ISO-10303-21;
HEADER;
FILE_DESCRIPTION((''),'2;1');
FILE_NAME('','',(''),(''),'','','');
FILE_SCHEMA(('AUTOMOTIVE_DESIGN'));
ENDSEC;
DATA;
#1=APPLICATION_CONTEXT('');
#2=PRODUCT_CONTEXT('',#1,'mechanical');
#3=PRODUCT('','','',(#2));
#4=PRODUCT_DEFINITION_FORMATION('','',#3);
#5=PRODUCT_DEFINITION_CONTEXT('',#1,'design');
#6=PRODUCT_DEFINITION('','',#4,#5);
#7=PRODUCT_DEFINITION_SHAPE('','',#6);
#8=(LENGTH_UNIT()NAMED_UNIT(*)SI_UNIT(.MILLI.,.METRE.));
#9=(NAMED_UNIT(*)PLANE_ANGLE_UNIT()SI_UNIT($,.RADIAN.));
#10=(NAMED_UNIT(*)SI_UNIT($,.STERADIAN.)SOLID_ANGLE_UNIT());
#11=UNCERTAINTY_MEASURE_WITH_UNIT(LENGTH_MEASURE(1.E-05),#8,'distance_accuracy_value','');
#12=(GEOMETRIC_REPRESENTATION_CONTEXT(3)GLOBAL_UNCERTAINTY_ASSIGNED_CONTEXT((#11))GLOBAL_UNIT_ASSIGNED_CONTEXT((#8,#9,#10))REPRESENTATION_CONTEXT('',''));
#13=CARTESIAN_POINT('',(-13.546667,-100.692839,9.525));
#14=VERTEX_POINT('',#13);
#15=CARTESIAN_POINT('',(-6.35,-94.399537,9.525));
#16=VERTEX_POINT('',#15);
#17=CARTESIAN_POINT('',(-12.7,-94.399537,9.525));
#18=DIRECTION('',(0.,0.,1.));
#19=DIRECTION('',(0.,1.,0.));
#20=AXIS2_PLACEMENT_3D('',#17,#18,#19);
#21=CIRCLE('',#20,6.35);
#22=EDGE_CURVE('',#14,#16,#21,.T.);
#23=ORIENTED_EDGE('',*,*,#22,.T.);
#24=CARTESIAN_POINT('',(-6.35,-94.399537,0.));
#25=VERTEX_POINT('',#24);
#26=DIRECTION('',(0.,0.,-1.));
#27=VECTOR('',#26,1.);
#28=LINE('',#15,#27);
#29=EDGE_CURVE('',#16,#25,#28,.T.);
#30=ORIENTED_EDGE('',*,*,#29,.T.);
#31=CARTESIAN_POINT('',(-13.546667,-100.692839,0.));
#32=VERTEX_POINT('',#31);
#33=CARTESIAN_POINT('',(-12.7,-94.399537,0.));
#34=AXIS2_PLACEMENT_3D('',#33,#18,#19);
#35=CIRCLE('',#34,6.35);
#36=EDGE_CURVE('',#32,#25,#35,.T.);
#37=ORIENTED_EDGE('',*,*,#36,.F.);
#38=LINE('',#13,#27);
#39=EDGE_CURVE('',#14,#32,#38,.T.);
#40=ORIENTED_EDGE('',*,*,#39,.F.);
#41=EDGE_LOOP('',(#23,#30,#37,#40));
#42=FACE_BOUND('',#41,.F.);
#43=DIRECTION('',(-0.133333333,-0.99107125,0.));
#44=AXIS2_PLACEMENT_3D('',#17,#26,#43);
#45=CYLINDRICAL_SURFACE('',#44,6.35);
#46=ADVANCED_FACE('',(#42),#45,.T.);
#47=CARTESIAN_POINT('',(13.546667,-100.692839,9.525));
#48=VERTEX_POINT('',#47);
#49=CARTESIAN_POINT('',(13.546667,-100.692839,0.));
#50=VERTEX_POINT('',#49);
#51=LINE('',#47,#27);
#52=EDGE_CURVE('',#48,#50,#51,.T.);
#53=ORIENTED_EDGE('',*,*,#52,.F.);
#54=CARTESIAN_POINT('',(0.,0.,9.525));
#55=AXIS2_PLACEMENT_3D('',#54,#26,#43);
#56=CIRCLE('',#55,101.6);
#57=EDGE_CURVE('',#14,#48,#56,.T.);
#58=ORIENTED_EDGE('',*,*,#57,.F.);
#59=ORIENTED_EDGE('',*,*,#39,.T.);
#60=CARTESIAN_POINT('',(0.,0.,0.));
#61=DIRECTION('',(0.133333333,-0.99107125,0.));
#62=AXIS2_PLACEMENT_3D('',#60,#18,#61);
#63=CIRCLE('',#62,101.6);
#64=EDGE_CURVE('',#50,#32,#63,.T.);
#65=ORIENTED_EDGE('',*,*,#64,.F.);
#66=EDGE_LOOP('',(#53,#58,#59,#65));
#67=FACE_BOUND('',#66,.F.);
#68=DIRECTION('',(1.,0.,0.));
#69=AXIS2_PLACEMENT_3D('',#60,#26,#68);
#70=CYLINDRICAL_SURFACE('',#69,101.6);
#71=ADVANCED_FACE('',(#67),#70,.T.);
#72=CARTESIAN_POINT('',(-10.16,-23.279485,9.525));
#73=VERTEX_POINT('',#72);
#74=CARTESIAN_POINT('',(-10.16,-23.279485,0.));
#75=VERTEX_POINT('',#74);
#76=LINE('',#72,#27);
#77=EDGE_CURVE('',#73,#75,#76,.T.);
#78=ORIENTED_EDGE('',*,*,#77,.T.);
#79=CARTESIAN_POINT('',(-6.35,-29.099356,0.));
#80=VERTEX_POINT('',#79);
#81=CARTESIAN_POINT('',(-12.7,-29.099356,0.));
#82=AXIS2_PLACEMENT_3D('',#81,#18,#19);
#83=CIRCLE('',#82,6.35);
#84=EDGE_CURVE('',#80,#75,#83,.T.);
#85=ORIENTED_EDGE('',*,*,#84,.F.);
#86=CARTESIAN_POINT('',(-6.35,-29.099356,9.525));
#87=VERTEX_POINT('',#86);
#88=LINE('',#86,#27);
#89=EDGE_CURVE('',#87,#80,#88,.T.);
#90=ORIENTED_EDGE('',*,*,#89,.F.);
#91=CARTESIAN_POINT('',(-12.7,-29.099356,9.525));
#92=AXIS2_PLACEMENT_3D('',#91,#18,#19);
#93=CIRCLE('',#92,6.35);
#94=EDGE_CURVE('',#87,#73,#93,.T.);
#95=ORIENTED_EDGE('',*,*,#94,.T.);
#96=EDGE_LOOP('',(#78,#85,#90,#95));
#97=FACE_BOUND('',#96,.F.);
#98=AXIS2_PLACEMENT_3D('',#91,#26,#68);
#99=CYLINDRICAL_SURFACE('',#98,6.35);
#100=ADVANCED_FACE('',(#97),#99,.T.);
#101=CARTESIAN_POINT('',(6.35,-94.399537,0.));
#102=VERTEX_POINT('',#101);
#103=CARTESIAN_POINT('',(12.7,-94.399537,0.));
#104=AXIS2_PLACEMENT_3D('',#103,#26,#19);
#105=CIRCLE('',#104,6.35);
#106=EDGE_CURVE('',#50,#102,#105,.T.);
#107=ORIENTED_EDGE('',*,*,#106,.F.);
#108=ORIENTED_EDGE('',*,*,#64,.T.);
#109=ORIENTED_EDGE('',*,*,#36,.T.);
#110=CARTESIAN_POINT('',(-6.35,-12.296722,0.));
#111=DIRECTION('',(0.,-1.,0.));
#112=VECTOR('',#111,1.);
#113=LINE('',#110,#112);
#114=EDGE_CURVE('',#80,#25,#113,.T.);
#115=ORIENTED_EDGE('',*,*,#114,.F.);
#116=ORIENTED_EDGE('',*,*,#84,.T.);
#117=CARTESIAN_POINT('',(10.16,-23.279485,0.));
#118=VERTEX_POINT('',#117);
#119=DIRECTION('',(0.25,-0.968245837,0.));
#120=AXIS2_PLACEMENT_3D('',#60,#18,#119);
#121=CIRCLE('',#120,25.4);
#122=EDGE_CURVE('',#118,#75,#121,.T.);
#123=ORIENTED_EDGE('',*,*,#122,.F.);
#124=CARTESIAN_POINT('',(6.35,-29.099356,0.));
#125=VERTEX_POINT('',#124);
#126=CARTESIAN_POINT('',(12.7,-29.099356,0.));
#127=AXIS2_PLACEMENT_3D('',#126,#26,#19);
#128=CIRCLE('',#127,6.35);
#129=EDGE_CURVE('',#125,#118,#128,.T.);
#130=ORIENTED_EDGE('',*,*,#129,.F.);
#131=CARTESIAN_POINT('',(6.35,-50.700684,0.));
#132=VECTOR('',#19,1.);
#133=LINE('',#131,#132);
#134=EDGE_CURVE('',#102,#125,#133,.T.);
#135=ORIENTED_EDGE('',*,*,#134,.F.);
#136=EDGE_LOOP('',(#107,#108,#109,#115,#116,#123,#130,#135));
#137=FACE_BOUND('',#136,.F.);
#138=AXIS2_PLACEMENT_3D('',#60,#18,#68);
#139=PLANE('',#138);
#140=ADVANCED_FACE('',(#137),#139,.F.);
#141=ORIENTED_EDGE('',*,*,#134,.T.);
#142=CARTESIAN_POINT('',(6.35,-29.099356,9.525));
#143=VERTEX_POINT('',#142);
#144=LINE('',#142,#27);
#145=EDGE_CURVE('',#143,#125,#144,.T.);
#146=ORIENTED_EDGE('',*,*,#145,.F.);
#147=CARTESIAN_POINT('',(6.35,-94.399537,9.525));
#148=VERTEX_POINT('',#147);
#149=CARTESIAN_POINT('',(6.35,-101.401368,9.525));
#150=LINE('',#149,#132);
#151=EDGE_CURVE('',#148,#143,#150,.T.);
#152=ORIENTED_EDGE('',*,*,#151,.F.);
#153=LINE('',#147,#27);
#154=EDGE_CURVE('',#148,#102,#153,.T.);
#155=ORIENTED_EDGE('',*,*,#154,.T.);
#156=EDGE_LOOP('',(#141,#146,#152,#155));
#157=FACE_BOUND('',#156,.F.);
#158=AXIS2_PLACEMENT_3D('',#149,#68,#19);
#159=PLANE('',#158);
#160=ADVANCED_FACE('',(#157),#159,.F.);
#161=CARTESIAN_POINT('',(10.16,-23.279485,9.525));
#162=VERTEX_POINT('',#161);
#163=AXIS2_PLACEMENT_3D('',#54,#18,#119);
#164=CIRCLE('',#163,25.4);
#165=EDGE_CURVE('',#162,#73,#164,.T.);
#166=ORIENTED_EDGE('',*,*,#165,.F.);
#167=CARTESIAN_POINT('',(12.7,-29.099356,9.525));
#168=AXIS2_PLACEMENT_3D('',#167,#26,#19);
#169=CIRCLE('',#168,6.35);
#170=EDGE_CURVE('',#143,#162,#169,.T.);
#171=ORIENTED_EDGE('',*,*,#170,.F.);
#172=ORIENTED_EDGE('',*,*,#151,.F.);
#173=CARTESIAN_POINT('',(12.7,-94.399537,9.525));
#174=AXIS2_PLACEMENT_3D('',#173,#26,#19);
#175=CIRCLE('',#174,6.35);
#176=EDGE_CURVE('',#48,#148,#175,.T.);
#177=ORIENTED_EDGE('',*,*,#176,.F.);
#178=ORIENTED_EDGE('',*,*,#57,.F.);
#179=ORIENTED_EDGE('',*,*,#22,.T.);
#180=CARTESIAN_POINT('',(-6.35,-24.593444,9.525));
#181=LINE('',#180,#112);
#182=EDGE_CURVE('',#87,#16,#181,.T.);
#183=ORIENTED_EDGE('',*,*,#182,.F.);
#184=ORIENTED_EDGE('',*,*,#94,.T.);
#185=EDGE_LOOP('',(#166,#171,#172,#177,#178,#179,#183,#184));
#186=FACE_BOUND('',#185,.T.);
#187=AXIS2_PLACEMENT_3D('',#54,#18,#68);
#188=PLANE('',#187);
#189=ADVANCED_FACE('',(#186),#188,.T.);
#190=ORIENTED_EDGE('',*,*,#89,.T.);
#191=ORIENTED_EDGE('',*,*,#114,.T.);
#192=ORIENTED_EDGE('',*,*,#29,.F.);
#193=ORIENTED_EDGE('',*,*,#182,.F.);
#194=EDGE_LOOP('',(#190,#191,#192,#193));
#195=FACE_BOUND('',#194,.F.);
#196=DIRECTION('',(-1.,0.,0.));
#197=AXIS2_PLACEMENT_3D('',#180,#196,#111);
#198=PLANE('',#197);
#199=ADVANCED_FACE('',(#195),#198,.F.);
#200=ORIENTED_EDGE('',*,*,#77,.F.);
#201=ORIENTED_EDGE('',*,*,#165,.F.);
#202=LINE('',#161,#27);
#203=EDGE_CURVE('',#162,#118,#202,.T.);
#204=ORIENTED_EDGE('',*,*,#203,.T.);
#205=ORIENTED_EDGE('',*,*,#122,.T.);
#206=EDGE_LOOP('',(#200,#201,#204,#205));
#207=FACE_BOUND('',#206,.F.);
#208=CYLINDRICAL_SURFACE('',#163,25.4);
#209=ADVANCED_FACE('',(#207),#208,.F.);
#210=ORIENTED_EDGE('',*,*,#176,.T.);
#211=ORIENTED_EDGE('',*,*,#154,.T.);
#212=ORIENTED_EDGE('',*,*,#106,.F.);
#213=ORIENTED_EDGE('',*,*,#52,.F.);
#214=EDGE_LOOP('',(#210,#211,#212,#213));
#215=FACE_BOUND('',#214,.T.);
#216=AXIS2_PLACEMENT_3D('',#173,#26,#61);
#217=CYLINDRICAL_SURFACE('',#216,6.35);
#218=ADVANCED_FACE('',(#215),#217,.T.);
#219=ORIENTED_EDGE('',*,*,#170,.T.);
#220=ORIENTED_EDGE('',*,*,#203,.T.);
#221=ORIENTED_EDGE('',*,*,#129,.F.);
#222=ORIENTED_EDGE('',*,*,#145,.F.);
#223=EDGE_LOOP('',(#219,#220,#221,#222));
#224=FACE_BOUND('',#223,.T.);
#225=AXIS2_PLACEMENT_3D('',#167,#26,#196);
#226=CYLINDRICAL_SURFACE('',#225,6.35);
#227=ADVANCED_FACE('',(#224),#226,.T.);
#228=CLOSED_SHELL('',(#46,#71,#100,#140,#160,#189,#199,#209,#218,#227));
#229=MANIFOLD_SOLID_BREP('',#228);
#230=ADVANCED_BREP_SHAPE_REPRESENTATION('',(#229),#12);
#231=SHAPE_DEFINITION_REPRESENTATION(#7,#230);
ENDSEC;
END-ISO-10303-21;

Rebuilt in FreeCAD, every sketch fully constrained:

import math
import FreeCAD as App
import Part
import Sketcher
from FreeCAD import Vector
Q = App.Units.Quantity


def edges_at(feature, points):
    """Names of the edges that pass closest to the given points."""
    edges = feature.Shape.Edges
    near = lambda p: min(range(len(edges)), key=lambda i: edges[i].distToShape(Part.Vertex(*p))[0])
    return sorted({f"Edge{near(p) + 1}" for p in points})

doc = App.newDocument("Part")
body = doc.addObject("PartDesign::Body", "Body")

# Sketch on XY plane
sketch1 = body.newObject("Sketcher::SketchObject", "Sketch")
sketch1.AttachmentSupport = (doc.getObject("XY_Plane"), [""])
sketch1.MapMode = "FlatFace"
sketch1.addGeometry(Part.Circle(Vector(0, 0, 0), Vector(0, 0, 1), 102), False)
sketch1.addConstraint(Sketcher.Constraint("Coincident", 0, 3, -1, 1))
sketch1.addConstraint(Sketcher.Constraint("Diameter", 0, Q("8 in")))
pad1 = body.newObject("PartDesign::Pad", "Pad")
pad1.Profile = sketch1
pad1.Length = Q("0.375 in")

# Sketch on XY plane
sketch2 = body.newObject("Sketcher::SketchObject", "Sketch001")
sketch2.AttachmentSupport = (doc.getObject("XY_Plane"), [""])
sketch2.MapMode = "FlatFace"
sketch2.AttachmentOffset = App.Placement(Vector(0, 0, 0.375 * 25.4), App.Rotation())
sketch2.addGeometry(Part.LineSegment(Vector(6, -101, 0), Vector(6, -25, 0)), False)
sketch2.addGeometry(Part.ArcOfCircle(Part.Circle(Vector(0, 0, 0), Vector(0, 0, 1), 25), math.radians(-76), math.radians(256)), False)
sketch2.addGeometry(Part.LineSegment(Vector(-6, -25, 0), Vector(-6, -101, 0)), False)
sketch2.addGeometry(Part.ArcOfCircle(Part.Circle(Vector(0, 0, 0), Vector(0, 0, 1), 102), math.radians(-93.58), math.radians(-86.42)), False)
sketch2.addConstraint(Sketcher.Constraint("Coincident", 0, 2, 1, 1))
sketch2.addConstraint(Sketcher.Constraint("Coincident", 1, 2, 2, 1))
sketch2.addConstraint(Sketcher.Constraint("Coincident", 2, 2, 3, 1))
sketch2.addConstraint(Sketcher.Constraint("Coincident", 3, 2, 0, 1))
sketch2.addConstraint(Sketcher.Constraint("Vertical", 0))
sketch2.addConstraint(Sketcher.Constraint("Vertical", 2))
sketch2.addConstraint(Sketcher.Constraint("Coincident", 1, 3, -1, 1))
sketch2.addConstraint(Sketcher.Constraint("Coincident", 3, 3, -1, 1))
sketch2.addConstraint(Sketcher.Constraint("Horizontal", 0, 2, 1, 2))
sketch2.addConstraint(Sketcher.Constraint("Radius", 1, Q("1 in")))
sketch2.addConstraint(Sketcher.Constraint("Radius", 3, Q("4 in")))
sketch2.addConstraint(Sketcher.Constraint("DistanceX", 1, 2, 0, 2, Q("0.5 in")))
pocket1 = body.newObject("PartDesign::Pocket", "Pocket")
pocket1.Profile = sketch2
pocket1.Type = "ThroughAll"
doc.recompute()

fillet = body.newObject("PartDesign::Fillet", "Fillet")
fillet.Base = (pocket1, edges_at(pocket1, [
    (-6.35, -101.401, 4.763),
    (6.35, -101.401, 4.763),
    (-6.35, -24.593, 4.763),
    (6.35, -24.593, 4.763),
]))
fillet.Radius = Q("0.25 in")

doc.recompute()
